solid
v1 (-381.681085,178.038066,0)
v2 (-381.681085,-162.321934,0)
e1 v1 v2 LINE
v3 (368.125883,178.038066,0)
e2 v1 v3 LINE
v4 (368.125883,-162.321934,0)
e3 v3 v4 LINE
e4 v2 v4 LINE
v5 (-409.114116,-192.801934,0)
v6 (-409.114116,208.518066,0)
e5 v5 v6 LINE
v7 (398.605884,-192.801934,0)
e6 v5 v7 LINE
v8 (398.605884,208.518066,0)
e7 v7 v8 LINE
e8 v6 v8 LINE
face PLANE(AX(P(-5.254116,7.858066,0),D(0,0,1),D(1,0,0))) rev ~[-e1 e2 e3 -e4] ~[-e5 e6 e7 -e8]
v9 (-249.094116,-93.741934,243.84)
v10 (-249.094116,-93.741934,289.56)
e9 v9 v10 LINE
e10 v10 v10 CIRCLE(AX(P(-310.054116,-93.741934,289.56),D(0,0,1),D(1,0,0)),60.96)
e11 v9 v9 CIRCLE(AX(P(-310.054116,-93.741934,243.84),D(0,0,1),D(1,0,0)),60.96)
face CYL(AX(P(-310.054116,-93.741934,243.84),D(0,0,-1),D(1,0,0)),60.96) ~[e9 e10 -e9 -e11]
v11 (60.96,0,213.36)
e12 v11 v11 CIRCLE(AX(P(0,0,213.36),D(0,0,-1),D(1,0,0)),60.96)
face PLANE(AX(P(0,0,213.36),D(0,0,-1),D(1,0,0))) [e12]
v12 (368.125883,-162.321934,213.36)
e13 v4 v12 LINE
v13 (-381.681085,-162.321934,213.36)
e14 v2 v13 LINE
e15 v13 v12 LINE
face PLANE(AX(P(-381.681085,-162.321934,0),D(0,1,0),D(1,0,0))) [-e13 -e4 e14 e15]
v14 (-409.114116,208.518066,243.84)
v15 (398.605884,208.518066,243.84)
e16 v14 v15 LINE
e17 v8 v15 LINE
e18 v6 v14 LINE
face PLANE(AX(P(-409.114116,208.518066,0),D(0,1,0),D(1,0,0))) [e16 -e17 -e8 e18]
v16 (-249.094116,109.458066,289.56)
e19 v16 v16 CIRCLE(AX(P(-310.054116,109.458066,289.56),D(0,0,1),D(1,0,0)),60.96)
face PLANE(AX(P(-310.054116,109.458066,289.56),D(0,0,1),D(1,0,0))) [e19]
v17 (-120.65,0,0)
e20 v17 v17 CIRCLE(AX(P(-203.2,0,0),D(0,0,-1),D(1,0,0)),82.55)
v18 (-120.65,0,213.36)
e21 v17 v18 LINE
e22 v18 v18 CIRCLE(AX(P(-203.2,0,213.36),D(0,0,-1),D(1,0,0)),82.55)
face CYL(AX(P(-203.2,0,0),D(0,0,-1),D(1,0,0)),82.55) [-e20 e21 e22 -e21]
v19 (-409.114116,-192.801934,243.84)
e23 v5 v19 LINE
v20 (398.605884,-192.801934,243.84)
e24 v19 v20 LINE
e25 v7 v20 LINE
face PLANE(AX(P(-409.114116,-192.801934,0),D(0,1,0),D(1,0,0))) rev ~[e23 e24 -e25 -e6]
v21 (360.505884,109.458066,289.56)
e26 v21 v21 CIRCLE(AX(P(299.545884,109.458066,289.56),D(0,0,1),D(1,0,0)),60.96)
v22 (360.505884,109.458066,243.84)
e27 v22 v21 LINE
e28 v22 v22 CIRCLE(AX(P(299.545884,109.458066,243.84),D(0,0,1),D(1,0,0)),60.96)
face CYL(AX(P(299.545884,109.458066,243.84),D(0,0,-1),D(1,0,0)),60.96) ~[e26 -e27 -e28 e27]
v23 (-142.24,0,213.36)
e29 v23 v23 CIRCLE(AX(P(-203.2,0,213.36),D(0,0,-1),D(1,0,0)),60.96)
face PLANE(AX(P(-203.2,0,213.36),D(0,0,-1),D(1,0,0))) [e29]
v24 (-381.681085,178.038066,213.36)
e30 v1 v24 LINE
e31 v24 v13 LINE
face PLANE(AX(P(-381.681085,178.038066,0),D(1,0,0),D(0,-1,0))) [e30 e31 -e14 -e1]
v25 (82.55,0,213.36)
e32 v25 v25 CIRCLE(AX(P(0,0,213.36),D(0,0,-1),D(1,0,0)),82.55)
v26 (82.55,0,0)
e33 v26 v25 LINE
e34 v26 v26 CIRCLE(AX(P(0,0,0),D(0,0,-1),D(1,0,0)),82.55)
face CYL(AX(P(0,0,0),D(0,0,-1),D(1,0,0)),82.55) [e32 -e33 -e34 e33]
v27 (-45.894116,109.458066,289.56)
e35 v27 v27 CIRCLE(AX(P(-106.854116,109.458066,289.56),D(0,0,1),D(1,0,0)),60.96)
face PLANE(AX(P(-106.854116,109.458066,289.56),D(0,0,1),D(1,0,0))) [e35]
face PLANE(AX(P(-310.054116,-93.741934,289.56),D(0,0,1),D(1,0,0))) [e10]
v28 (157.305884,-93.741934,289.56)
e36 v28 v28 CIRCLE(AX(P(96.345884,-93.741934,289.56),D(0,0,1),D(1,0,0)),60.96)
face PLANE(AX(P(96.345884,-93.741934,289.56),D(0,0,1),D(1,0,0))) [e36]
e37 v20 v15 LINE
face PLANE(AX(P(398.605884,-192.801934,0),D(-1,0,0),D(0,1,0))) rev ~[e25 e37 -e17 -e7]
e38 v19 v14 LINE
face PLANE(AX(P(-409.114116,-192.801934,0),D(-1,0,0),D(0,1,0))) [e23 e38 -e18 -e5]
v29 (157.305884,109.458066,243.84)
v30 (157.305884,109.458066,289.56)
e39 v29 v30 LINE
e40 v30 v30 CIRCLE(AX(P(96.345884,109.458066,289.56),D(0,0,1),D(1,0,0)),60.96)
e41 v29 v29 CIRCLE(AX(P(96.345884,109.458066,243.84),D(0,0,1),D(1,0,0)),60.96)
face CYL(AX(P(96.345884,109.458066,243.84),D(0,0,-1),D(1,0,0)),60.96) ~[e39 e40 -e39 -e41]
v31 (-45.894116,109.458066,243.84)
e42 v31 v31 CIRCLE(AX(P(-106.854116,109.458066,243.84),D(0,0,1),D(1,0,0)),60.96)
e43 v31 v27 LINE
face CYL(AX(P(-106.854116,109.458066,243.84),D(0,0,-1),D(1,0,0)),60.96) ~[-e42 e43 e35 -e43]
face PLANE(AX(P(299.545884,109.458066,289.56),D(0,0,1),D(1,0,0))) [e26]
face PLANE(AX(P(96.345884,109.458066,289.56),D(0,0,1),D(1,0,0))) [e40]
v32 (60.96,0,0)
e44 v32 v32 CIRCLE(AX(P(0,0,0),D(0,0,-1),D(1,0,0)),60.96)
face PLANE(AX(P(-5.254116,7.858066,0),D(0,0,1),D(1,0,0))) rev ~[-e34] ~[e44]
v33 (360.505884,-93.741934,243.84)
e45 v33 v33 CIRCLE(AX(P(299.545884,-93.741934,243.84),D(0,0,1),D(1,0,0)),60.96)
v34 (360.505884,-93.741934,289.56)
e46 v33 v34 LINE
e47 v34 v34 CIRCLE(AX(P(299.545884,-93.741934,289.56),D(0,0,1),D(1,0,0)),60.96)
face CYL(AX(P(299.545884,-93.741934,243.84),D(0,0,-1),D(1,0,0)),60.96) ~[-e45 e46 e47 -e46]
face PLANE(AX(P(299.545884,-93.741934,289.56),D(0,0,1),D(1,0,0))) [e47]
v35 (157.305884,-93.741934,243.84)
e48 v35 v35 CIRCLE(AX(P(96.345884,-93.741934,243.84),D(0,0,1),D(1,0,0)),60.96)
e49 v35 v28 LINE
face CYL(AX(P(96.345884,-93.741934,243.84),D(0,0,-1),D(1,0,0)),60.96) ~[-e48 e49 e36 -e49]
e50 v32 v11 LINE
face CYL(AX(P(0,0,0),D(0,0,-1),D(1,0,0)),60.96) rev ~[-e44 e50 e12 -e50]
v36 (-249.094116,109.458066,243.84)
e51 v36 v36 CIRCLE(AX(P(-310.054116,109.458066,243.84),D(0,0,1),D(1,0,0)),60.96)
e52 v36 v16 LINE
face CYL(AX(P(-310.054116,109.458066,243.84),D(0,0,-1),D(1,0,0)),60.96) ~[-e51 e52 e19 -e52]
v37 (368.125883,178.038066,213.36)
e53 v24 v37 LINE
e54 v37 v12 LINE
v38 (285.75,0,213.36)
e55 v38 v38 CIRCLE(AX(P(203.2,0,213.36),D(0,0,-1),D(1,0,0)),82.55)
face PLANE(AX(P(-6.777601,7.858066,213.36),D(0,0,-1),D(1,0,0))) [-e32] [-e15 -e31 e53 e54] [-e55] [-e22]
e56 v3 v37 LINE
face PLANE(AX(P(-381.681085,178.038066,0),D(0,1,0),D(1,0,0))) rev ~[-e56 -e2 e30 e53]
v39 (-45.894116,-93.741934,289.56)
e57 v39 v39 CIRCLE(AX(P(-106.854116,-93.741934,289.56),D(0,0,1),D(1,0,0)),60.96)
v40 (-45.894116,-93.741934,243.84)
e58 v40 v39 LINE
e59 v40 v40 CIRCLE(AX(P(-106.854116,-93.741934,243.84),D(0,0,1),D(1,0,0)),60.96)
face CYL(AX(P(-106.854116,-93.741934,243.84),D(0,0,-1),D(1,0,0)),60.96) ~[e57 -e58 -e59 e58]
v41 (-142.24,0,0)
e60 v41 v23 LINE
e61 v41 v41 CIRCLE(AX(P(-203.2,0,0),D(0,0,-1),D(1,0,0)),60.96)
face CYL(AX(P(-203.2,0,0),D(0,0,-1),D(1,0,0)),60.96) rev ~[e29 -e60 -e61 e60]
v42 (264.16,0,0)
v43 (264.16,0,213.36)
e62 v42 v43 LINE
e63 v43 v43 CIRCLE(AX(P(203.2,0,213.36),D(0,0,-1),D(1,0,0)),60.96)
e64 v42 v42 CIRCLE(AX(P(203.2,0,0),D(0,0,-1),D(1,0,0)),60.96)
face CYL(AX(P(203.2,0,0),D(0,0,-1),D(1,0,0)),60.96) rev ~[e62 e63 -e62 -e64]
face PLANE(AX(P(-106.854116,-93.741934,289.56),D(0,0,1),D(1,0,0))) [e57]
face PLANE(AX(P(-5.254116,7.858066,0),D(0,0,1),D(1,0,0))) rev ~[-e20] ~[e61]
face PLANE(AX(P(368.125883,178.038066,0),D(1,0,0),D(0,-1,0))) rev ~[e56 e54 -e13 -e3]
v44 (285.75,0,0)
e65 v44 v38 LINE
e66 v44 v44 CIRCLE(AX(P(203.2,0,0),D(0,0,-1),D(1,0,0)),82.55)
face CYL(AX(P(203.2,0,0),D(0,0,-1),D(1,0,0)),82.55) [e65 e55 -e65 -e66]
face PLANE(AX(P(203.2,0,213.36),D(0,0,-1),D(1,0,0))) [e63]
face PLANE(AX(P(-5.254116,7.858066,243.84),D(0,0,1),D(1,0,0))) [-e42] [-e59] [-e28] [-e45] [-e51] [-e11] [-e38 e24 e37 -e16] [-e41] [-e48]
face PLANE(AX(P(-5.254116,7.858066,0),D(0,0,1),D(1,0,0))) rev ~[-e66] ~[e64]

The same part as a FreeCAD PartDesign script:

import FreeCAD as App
import Part
import Sketcher
Q = App.Units.Quantity


def add_polygon(sketch, points):
    """Adds a closed chain of lines whose ends are joined by coincident constraints."""
    first, n = sketch.GeometryCount, len(points)
    for a, b in zip(points, points[1:] + points[:1]):
        sketch.addGeometry(Part.LineSegment(App.Vector(*a, 0), App.Vector(*b, 0)), False)
    for i in range(n):
        sketch.addConstraint(Sketcher.Constraint("Coincident", first + i, 2, first + (i + 1) % n, 1))

doc = App.newDocument("Part")
body = doc.addObject("PartDesign::Body", "Body")

sketch1 = doc.addObject("Sketcher::SketchObject", "Sketch")
body.addObject(sketch1)
sketch1.AttachmentSupport = (doc.XY_Plane, [""])
sketch1.MapMode = "FlatFace"
add_polygon(sketch1, [(-409, 209), (-409, -193), (399, -193), (399, 209)])
sketch1.addConstraint([
    Sketcher.Constraint("Vertical", 0),
    Sketcher.Constraint("Horizontal", 1),
    Sketcher.Constraint("Vertical", 2),
    Sketcher.Constraint("Horizontal", 3),
    Sketcher.Constraint("DistanceX", 1, 1, 1, 2, Q("31.8 in")),
    Sketcher.Constraint("DistanceY", 0, 2, 0, 1, Q("15.8 in")),
    Sketcher.Constraint("DistanceX", 0, 2, -1, 1, Q("409.114116 mm")),
    Sketcher.Constraint("DistanceY", 0, 2, -1, 1, Q("192.801934 mm")),
])
pad1 = doc.addObject("PartDesign::Pad", "Pad")
body.addObject(pad1)
pad1.Profile = sketch1
pad1.Length = Q("9.6 in")

sketch2 = doc.addObject("Sketcher::SketchObject", "Sketch001")
body.addObject(sketch2)
sketch2.AttachmentSupport = (doc.XY_Plane, [""])
sketch2.MapMode = "FlatFace"
sketch2.AttachmentOffset = App.Placement(App.Vector(0, 0, 9.6 * 25.4), App.Rotation())
sketch2.addGeometry([
    Part.Circle(App.Vector(-310, 109, 0), App.Vector(0, 0, 1), 61),
    Part.Circle(App.Vector(-310, -94, 0), App.Vector(0, 0, 1), 61),
    Part.Circle(App.Vector(-107, 109, 0), App.Vector(0, 0, 1), 61),
    Part.Circle(App.Vector(-107, -94, 0), App.Vector(0, 0, 1), 61),
    Part.Circle(App.Vector(96, 109, 0), App.Vector(0, 0, 1), 61),
    Part.Circle(App.Vector(96, -94, 0), App.Vector(0, 0, 1), 61),
    Part.Circle(App.Vector(300, 109, 0), App.Vector(0, 0, 1), 61),
    Part.Circle(App.Vector(300, -94, 0), App.Vector(0, 0, 1), 61),
], False)
sketch2.addConstraint([
    Sketcher.Constraint("Equal", 0, 1),
    Sketcher.Constraint("Equal", 1, 2),
    Sketcher.Constraint("Equal", 2, 3),
    Sketcher.Constraint("Equal", 3, 4),
    Sketcher.Constraint("Equal", 4, 5),
    Sketcher.Constraint("Equal", 5, 6),
    Sketcher.Constraint("Equal", 6, 7),
    Sketcher.Constraint("Horizontal", 0, 3, 2, 3),
    Sketcher.Constraint("Horizontal", 1, 3, 3, 3),
    Sketcher.Constraint("Horizontal", 2, 3, 4, 3),
    Sketcher.Constraint("Horizontal", 3, 3, 5, 3),
    Sketcher.Constraint("Horizontal", 4, 3, 6, 3),
    Sketcher.Constraint("Horizontal", 5, 3, 7, 3),
    Sketcher.Constraint("Vertical", 0, 3, 1, 3),
    Sketcher.Constraint("Vertical", 2, 3, 3, 3),
    Sketcher.Constraint("Vertical", 4, 3, 5, 3),
    Sketcher.Constraint("Vertical", 6, 3, 7, 3),
    Sketcher.Constraint("Diameter", 0, Q("4.8 in")),
    Sketcher.Constraint("DistanceY", 1, 3, 0, 3, Q("8 in")),
    Sketcher.Constraint("DistanceX", 0, 3, 2, 3, Q("8 in")),
    Sketcher.Constraint("DistanceX", 2, 3, 4, 3, Q("8 in")),
    Sketcher.Constraint("DistanceX", 4, 3, 6, 3, Q("8 in")),
    Sketcher.Constraint("DistanceX", 0, 3, -1, 1, Q("310.054116 mm")),
    Sketcher.Constraint("DistanceY", -1, 1, 0, 3, Q("109.458066 mm")),
])
pad2 = doc.addObject("PartDesign::Pad", "Pad001")
body.addObject(pad2)
pad2.Profile = sketch2
pad2.Length = Q("1.8 in")

sketch3 = doc.addObject("Sketcher::SketchObject", "Sketch002")
body.addObject(sketch3)
sketch3.AttachmentSupport = (doc.XY_Plane, [""])
sketch3.MapMode = "FlatFace"
add_polygon(sketch3, [(-382, -162), (-382, 178), (368, 178), (368, -162)])
sketch3.addGeometry(Part.Circle(App.Vector(-203, 0, 0), App.Vector(0, 0, 1), 83), False)
sketch3.addGeometry(Part.Circle(App.Vector(0, 0, 0), App.Vector(0, 0, 1), 83), False)
sketch3.addGeometry(Part.Circle(App.Vector(203, 0, 0), App.Vector(0, 0, 1), 83), False)
sketch3.addGeometry(Part.Circle(App.Vector(-203, 0, 0), App.Vector(0, 0, 1), 61), False)
sketch3.addGeometry(Part.Circle(App.Vector(0, 0, 0), App.Vector(0, 0, 1), 61), False)
sketch3.addGeometry(Part.Circle(App.Vector(203, 0, 0), App.Vector(0, 0, 1), 61), False)
sketch3.addConstraint([
    Sketcher.Constraint("Vertical", 0),
    Sketcher.Constraint("Horizontal", 1),
    Sketcher.Constraint("Vertical", 2),
    Sketcher.Constraint("Horizontal", 3),
    Sketcher.Constraint("Coincident", 5, 3, -1, 1),
    Sketcher.Constraint("Coincident", 8, 3, -1, 1),
    Sketcher.Constraint("Coincident", 7, 3, 4, 3),
    Sketcher.Constraint("Coincident", 9, 3, 6, 3),
    Sketcher.Constraint("Equal", 4, 5),
    Sketcher.Constraint("Equal", 5, 6),
    Sketcher.Constraint("Equal", 7, 8),
    Sketcher.Constraint("Equal", 8, 9),
    Sketcher.Constraint("Symmetric", 4, 3, 6, 3, -1, 1),
    Sketcher.Constraint("PointOnObject", 4, 3, -1),
    Sketcher.Constraint("Diameter", 4, Q("6.5 in")),
    Sketcher.Constraint("Diameter", 7, Q("4.8 in")),
    Sketcher.Constraint("DistanceY", 0, 1, 0, 2, Q("13.4 in")),
    Sketcher.Constraint("DistanceX", 4, 3, -1, 1, Q("8 in")),
    Sketcher.Constraint("DistanceX", 1, 1, 1, 2, Q("749.806969 mm")),
    Sketcher.Constraint("DistanceX", 0, 2, -1, 1, Q("381.681085 mm")),
    Sketcher.Constraint("DistanceY", -1, 1, 0, 2, Q("178.038066 mm")),
])
pocket1 = doc.addObject("PartDesign::Pocket", "Pocket")
body.addObject(pocket1)
pocket1.Profile = sketch3
pocket1.Length = Q("8.4 in")
pocket1.Reversed = True

doc.recompute()
